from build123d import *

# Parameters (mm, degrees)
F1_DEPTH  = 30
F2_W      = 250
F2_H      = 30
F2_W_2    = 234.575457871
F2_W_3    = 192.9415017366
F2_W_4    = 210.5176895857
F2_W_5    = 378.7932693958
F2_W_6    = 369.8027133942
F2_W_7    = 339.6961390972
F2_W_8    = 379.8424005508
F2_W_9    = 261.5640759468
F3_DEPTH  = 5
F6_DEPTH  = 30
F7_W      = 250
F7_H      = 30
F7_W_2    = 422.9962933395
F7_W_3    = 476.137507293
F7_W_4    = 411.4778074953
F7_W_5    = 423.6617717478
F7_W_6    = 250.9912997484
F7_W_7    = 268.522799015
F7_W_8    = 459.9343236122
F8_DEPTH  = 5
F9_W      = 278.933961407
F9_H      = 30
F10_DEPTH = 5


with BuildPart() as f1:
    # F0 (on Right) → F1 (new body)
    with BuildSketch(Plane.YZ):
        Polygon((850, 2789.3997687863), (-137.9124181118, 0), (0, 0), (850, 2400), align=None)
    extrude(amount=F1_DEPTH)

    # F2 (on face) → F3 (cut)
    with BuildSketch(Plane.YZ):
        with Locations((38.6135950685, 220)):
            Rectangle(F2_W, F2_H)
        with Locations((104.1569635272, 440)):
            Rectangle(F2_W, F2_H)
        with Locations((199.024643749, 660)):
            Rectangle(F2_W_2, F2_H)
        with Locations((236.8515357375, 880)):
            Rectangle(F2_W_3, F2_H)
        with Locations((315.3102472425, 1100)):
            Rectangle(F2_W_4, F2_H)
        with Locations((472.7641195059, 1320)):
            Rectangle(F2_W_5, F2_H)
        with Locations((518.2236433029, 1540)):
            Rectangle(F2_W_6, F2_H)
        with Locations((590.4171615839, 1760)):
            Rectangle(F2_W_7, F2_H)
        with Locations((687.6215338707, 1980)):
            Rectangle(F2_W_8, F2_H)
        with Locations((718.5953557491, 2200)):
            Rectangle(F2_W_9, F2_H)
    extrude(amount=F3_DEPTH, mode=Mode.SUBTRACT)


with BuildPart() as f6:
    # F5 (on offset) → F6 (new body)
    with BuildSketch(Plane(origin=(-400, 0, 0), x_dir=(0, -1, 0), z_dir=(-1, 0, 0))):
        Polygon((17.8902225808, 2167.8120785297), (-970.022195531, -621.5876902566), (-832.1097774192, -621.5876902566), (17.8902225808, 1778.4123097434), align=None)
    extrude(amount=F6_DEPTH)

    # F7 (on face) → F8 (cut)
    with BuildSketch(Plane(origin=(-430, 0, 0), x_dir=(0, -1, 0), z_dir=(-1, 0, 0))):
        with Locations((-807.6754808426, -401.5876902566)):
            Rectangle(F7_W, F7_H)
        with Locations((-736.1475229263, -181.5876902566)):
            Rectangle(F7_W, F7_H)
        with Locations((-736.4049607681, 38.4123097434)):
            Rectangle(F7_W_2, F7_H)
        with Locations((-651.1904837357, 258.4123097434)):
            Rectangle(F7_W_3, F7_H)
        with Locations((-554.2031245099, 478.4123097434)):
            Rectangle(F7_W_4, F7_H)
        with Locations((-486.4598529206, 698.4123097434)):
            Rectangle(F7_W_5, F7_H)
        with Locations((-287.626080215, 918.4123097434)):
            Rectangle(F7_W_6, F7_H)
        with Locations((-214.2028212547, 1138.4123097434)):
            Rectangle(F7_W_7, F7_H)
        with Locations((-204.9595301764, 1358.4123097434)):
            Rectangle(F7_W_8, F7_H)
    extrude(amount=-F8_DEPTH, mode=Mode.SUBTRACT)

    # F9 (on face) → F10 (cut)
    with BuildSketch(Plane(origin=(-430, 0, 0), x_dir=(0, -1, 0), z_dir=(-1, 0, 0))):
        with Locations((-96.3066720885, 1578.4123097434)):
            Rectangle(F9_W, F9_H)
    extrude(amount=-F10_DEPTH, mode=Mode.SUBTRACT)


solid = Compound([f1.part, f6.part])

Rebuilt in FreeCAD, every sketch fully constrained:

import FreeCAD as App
import Part
import Sketcher

V = App.Vector
Q = App.Units.Quantity

doc = App.newDocument("Part")
body = doc.addObject("PartDesign::Body", "Body")

sketch1 = body.newObject("Sketcher::SketchObject", "Sketch")
sketch1.AttachmentSupport = (doc.getObject("YZ_Plane"), [""])
sketch1.MapMode = "FlatFace"
sketch1.addGeometry([
    Part.LineSegment(V(850, 2789, 0), V(-138, 0, 0)),
    Part.LineSegment(V(-138, 0, 0), V(0, 0, 0)),
    Part.LineSegment(V(0, 0, 0), V(850, 2400, 0)),
    Part.LineSegment(V(850, 2400, 0), V(850, 2789, 0)),
], False)
sketch1.addConstraint([
    Sketcher.Constraint("Coincident", 0, 2, 1, 1),
    Sketcher.Constraint("Coincident", 1, 2, 2, 1),
    Sketcher.Constraint("Coincident", 2, 2, 3, 1),
    Sketcher.Constraint("Coincident", 3, 2, 0, 1),
    Sketcher.Constraint("Horizontal", 1),
    Sketcher.Constraint("Vertical", 3),
    Sketcher.Constraint("Coincident", 1, 2, -1, 1),
    Sketcher.Constraint("Parallel", 0, 2),
    Sketcher.Constraint("DistanceX", -1, 1, 2, 2, Q("850 mm")),
    Sketcher.Constraint("DistanceY", -1, 1, 2, 2, Q("2400 mm")),
    Sketcher.Constraint("Distance", 0, Q("2959.175901 mm")),
])
pad1 = body.newObject("PartDesign::Pad", "Pad")
pad1.Profile = sketch1
pad1.Length = 30

sketch2 = body.newObject("Sketcher::SketchObject", "Sketch001")
sketch2.AttachmentSupport = (doc.getObject("YZ_Plane"), [""])
sketch2.MapMode = "FlatFace"
sketch2.addGeometry([
    Part.LineSegment(V(-86, 235, 0), V(-86, 205, 0)),
    Part.LineSegment(V(-86, 205, 0), V(164, 205, 0)),
    Part.LineSegment(V(164, 205, 0), V(164, 235, 0)),
    Part.LineSegment(V(164, 235, 0), V(-86, 235, 0)),
    Part.LineSegment(V(-21, 455, 0), V(-21, 425, 0)),
    Part.LineSegment(V(-21, 425, 0), V(229, 425, 0)),
    Part.LineSegment(V(229, 425, 0), V(229, 455, 0)),
    Part.LineSegment(V(229, 455, 0), V(-21, 455, 0)),
    Part.LineSegment(V(82, 675, 0), V(82, 645, 0)),
    Part.LineSegment(V(82, 645, 0), V(316, 645, 0)),
    Part.LineSegment(V(316, 645, 0), V(316, 675, 0)),
    Part.LineSegment(V(316, 675, 0), V(82, 675, 0)),
    Part.LineSegment(V(140, 895, 0), V(140, 865, 0)),
    Part.LineSegment(V(140, 865, 0), V(333, 865, 0)),
    Part.LineSegment(V(333, 865, 0), V(333, 895, 0)),
    Part.LineSegment(V(333, 895, 0), V(140, 895, 0)),
    Part.LineSegment(V(210, 1115, 0), V(210, 1085, 0)),
    Part.LineSegment(V(210, 1085, 0), V(421, 1085, 0)),
    Part.LineSegment(V(421, 1085, 0), V(421, 1115, 0)),
    Part.LineSegment(V(421, 1115, 0), V(210, 1115, 0)),
    Part.LineSegment(V(283, 1335, 0), V(283, 1305, 0)),
    Part.LineSegment(V(283, 1305, 0), V(662, 1305, 0)),
    Part.LineSegment(V(662, 1305, 0), V(662, 1335, 0)),
    Part.LineSegment(V(662, 1335, 0), V(283, 1335, 0)),
    Part.LineSegment(V(333, 1555, 0), V(333, 1525, 0)),
    Part.LineSegment(V(333, 1525, 0), V(703, 1525, 0)),
    Part.LineSegment(V(703, 1525, 0), V(703, 1555, 0)),
    Part.LineSegment(V(703, 1555, 0), V(333, 1555, 0)),
    Part.LineSegment(V(421, 1775, 0), V(421, 1745, 0)),
    Part.LineSegment(V(421, 1745, 0), V(760, 1745, 0)),
    Part.LineSegment(V(760, 1745, 0), V(760, 1775, 0)),
    Part.LineSegment(V(760, 1775, 0), V(421, 1775, 0)),
    Part.LineSegment(V(498, 1995, 0), V(498, 1965, 0)),
    Part.LineSegment(V(498, 1965, 0), V(878, 1965, 0)),
    Part.LineSegment(V(878, 1965, 0), V(878, 1995, 0)),
    Part.LineSegment(V(878, 1995, 0), V(498, 1995, 0)),
    Part.LineSegment(V(588, 2215, 0), V(588, 2185, 0)),
    Part.LineSegment(V(588, 2185, 0), V(849, 2185, 0)),
    Part.LineSegment(V(849, 2185, 0), V(849, 2215, 0)),
    Part.LineSegment(V(849, 2215, 0), V(588, 2215, 0)),
], False)
sketch2.addConstraint([
    Sketcher.Constraint("Coincident", 0, 2, 1, 1),
    Sketcher.Constraint("Coincident", 1, 2, 2, 1),
    Sketcher.Constraint("Coincident", 2, 2, 3, 1),
    Sketcher.Constraint("Coincident", 3, 2, 0, 1),
    Sketcher.Constraint("Coincident", 4, 2, 5, 1),
    Sketcher.Constraint("Coincident", 5, 2, 6, 1),
    Sketcher.Constraint("Coincident", 6, 2, 7, 1),
    Sketcher.Constraint("Coincident", 7, 2, 4, 1),
    Sketcher.Constraint("Coincident", 8, 2, 9, 1),
    Sketcher.Constraint("Coincident", 9, 2, 10, 1),
    Sketcher.Constraint("Coincident", 10, 2, 11, 1),
    Sketcher.Constraint("Coincident", 11, 2, 8, 1),
    Sketcher.Constraint("Coincident", 12, 2, 13, 1),
    Sketcher.Constraint("Coincident", 13, 2, 14, 1),
    Sketcher.Constraint("Coincident", 14, 2, 15, 1),
    Sketcher.Constraint("Coincident", 15, 2, 12, 1),
    Sketcher.Constraint("Coincident", 16, 2, 17, 1),
    Sketcher.Constraint("Coincident", 17, 2, 18, 1),
    Sketcher.Constraint("Coincident", 18, 2, 19, 1),
    Sketcher.Constraint("Coincident", 19, 2, 16, 1),
    Sketcher.Constraint("Coincident", 20, 2, 21, 1),
    Sketcher.Constraint("Coincident", 21, 2, 22, 1),
    Sketcher.Constraint("Coincident", 22, 2, 23, 1),
    Sketcher.Constraint("Coincident", 23, 2, 20, 1),
    Sketcher.Constraint("Coincident", 24, 2, 25, 1),
    Sketcher.Constraint("Coincident", 25, 2, 26, 1),
    Sketcher.Constraint("Coincident", 26, 2, 27, 1),
    Sketcher.Constraint("Coincident", 27, 2, 24, 1),
    Sketcher.Constraint("Coincident", 28, 2, 29, 1),
    Sketcher.Constraint("Coincident", 29, 2, 30, 1),
    Sketcher.Constraint("Coincident", 30, 2, 31, 1),
    Sketcher.Constraint("Coincident", 31, 2, 28, 1),
    Sketcher.Constraint("Coincident", 32, 2, 33, 1),
    Sketcher.Constraint("Coincident", 33, 2, 34, 1),
    Sketcher.Constraint("Coincident", 34, 2, 35, 1),
    Sketcher.Constraint("Coincident", 35, 2, 32, 1),
    Sketcher.Constraint("Coincident", 36, 2, 37, 1),
    Sketcher.Constraint("Coincident", 37, 2, 38, 1),
    Sketcher.Constraint("Coincident", 38, 2, 39, 1),
    Sketcher.Constraint("Coincident", 39, 2, 36, 1),
    Sketcher.Constraint("Vertical", 0),
    Sketcher.Constraint("Horizontal", 1),
    Sketcher.Constraint("Vertical", 2),
    Sketcher.Constraint("Horizontal", 3),
    Sketcher.Constraint("Vertical", 4),
    Sketcher.Constraint("Horizontal", 5),
    Sketcher.Constraint("Vertical", 6),
    Sketcher.Constraint("Horizontal", 7),
    Sketcher.Constraint("Vertical", 8),
    Sketcher.Constraint("Horizontal", 9),
    Sketcher.Constraint("Vertical", 10),
    Sketcher.Constraint("Horizontal", 11),
    Sketcher.Constraint("Vertical", 12),
    Sketcher.Constraint("Horizontal", 13),
    Sketcher.Constraint("Vertical", 14),
    Sketcher.Constraint("Horizontal", 15),
    Sketcher.Constraint("Vertical", 16),
    Sketcher.Constraint("Horizontal", 17),
    Sketcher.Constraint("Vertical", 18),
    Sketcher.Constraint("Horizontal", 19),
    Sketcher.Constraint("Vertical", 20),
    Sketcher.Constraint("Horizontal", 21),
    Sketcher.Constraint("Vertical", 22),
    Sketcher.Constraint("Horizontal", 23),
    Sketcher.Constraint("Vertical", 24),
    Sketcher.Constraint("Horizontal", 25),
    Sketcher.Constraint("Vertical", 26),
    Sketcher.Constraint("Horizontal", 27),
    Sketcher.Constraint("Vertical", 28),
    Sketcher.Constraint("Horizontal", 29),
    Sketcher.Constraint("Vertical", 30),
    Sketcher.Constraint("Horizontal", 31),
    Sketcher.Constraint("Vertical", 32),
    Sketcher.Constraint("Horizontal", 33),
    Sketcher.Constraint("Vertical", 34),
    Sketcher.Constraint("Horizontal", 35),
    Sketcher.Constraint("Vertical", 36),
    Sketcher.Constraint("Horizontal", 37),
    Sketcher.Constraint("Vertical", 38),
    Sketcher.Constraint("Horizontal", 39),
    Sketcher.Constraint("Vertical", 14, 2, 24, 2),
    Sketcher.Constraint("Vertical", 18, 2, 28, 2),
    Sketcher.Constraint("Equal", 3, 5),
    Sketcher.Constraint("Equal", 2, 4),
    Sketcher.Constraint("Equal", 6, 8),
    Sketcher.Constraint("Equal", 10, 12),
    Sketcher.Constraint("Equal", 14, 16),
    Sketcher.Constraint("Equal", 18, 20),
    Sketcher.Constraint("Equal", 22, 24),
    Sketcher.Constraint("Equal", 26, 28),
    Sketcher.Constraint("Equal", 30, 32),
    Sketcher.Constraint("Equal", 34, 36),
    Sketcher.Constraint("DistanceX", 1, 1, 1, 2, Q("250 mm")),
    Sketcher.Constraint("DistanceY", 0, 2, 0, 1, Q("30 mm")),
    Sketcher.Constraint("DistanceY", -1, 1, 0, 2, Q("205 mm")),
    Sketcher.Constraint("DistanceY", -1, 1, 4, 2, Q("425 mm")),
    Sketcher.Constraint("DistanceY", -1, 1, 8, 2, Q("645 mm")),
    Sketcher.Constraint("DistanceY", -1, 1, 12, 2, Q("865 mm")),
    Sketcher.Constraint("DistanceY", -1, 1, 16, 2, Q("1085 mm")),
    Sketcher.Constraint("DistanceY", -1, 1, 20, 2, Q("1305 mm")),
    Sketcher.Constraint("DistanceY", -1, 1, 24, 2, Q("1525 mm")),
    Sketcher.Constraint("DistanceY", -1, 1, 28, 2, Q("1745 mm")),
    Sketcher.Constraint("DistanceY", -1, 1, 32, 2, Q("1965 mm")),
    Sketcher.Constraint("DistanceY", -1, 1, 36, 2, Q("2185 mm")),
    Sketcher.Constraint("DistanceX", 13, 1, 13, 2, Q("192.941502 mm")),
    Sketcher.Constraint("DistanceX", 33, 1, 33, 2, Q("379.842401 mm")),
    Sketcher.Constraint("DistanceX", -1, 1, 25, 2, Q("703.125 mm")),
    Sketcher.Constraint("DistanceX", 17, 1, 17, 2, Q("210.51769 mm")),
    Sketcher.Constraint("DistanceX", 21, 1, 21, 2, Q("378.793269 mm")),
    Sketcher.Constraint("DistanceX", 29, 1, 29, 2, Q("339.696139 mm")),
    Sketcher.Constraint("DistanceX", 20, 2, 14, 2, Q("49.954802 mm")),
    Sketcher.Constraint("DistanceX", 9, 1, 9, 2, Q("234.575458 mm")),
    Sketcher.Constraint("DistanceX", 25, 1, 25, 2, Q("369.802713 mm")),
    Sketcher.Constraint("DistanceX", 37, 1, 37, 2, Q("261.564076 mm")),
    Sketcher.Constraint("DistanceX", -1, 1, 29, 2, Q("760.265231 mm")),
    Sketcher.Constraint("DistanceX", 3, 2, 4, 2, Q("65.543368 mm")),
    Sketcher.Constraint("DistanceX", 7, 2, 8, 2, Q("102.579951 mm")),
    Sketcher.Constraint("DistanceX", 11, 2, 12, 2, Q("58.64387 mm")),
    Sketcher.Constraint("DistanceX", 31, 2, 32, 2, Q("77.131242 mm")),
    Sketcher.Constraint("DistanceX", 37, 2, 34, 2, Q("28.16534 mm")),
])
pocket1 = body.newObject("PartDesign::Pocket", "Pocket")
pocket1.Profile = sketch2
pocket1.Length = 5
pocket1.Reversed = True
body2 = doc.addObject("PartDesign::Body", "Body001")

sketch3 = body2.newObject("Sketcher::SketchObject", "Sketch002")
sketch3.AttachmentSupport = (doc.getObject("YZ_Plane001"), [""])
sketch3.MapMode = "FlatFace"
sketch3.AttachmentOffset = App.Placement(V(0, 0, -400), App.Rotation())
sketch3.addGeometry([
    Part.LineSegment(V(-18, 2168, 0), V(970, -622, 0)),
    Part.LineSegment(V(970, -622, 0), V(832, -622, 0)),
    Part.LineSegment(V(832, -622, 0), V(-18, 1778, 0)),
    Part.LineSegment(V(-18, 1778, 0), V(-18, 2168, 0)),
], False)
sketch3.addConstraint([
    Sketcher.Constraint("Coincident", 0, 2, 1, 1),
    Sketcher.Constraint("Coincident", 1, 2, 2, 1),
    Sketcher.Constraint("Coincident", 2, 2, 3, 1),
    Sketcher.Constraint("Coincident", 3, 2, 0, 1),
    Sketcher.Constraint("Horizontal", 1),
    Sketcher.Constraint("Vertical", 3),
    Sketcher.Constraint("Parallel", 0, 2),
    Sketcher.Constraint("DistanceX", 2, 2, 1, 2, Q("850 mm")),
    Sketcher.Constraint("DistanceY", 1, 2, 2, 2, Q("2400 mm")),
    Sketcher.Constraint("Distance", 0, Q("2959.175901 mm")),
    Sketcher.Constraint("DistanceY", 0, 2, -1, 1, Q("621.58769 mm")),
    Sketcher.Constraint("DistanceX", -1, 1, 0, 2, Q("970.022196 mm")),
])
pad2 = body2.newObject("PartDesign::Pad", "Pad001")
pad2.Profile = sketch3
pad2.Length = 30
pad2.Reversed = True

sketch4 = body2.newObject("Sketcher::SketchObject", "Sketch003")
sketch4.AttachmentSupport = (doc.getObject("YZ_Plane001"), [""])
sketch4.MapMode = "FlatFace"
sketch4.AttachmentOffset = App.Placement(V(0, 0, -430), App.Rotation())
sketch4.addGeometry([
    Part.LineSegment(V(933, -387, 0), V(933, -417, 0)),
    Part.LineSegment(V(933, -417, 0), V(683, -417, 0)),
    Part.LineSegment(V(683, -417, 0), V(683, -387, 0)),
    Part.LineSegment(V(683, -387, 0), V(933, -387, 0)),
    Part.LineSegment(V(861, -167, 0), V(861, -197, 0)),
    Part.LineSegment(V(861, -197, 0), V(611, -197, 0)),
    Part.LineSegment(V(611, -197, 0), V(611, -167, 0)),
    Part.LineSegment(V(611, -167, 0), V(861, -167, 0)),
    Part.LineSegment(V(948, 53, 0), V(948, 23, 0)),
    Part.LineSegment(V(948, 23, 0), V(525, 23, 0)),
    Part.LineSegment(V(525, 23, 0), V(525, 53, 0)),
    Part.LineSegment(V(525, 53, 0), V(948, 53, 0)),
    Part.LineSegment(V(889, 273, 0), V(889, 243, 0)),
    Part.LineSegment(V(889, 243, 0), V(413, 243, 0)),
    Part.LineSegment(V(413, 243, 0), V(413, 273, 0)),
    Part.LineSegment(V(413, 273, 0), V(889, 273, 0)),
    Part.LineSegment(V(760, 493, 0), V(760, 463, 0)),
    Part.LineSegment(V(760, 463, 0), V(348, 463, 0)),
    Part.LineSegment(V(348, 463, 0), V(348, 493, 0)),
    Part.LineSegment(V(348, 493, 0), V(760, 493, 0)),
    Part.LineSegment(V(698, 713, 0), V(698, 683, 0)),
    Part.LineSegment(V(698, 683, 0), V(275, 683, 0)),
    Part.LineSegment(V(275, 683, 0), V(275, 713, 0)),
    Part.LineSegment(V(275, 713, 0), V(698, 713, 0)),
    Part.LineSegment(V(413, 933, 0), V(413, 903, 0)),
    Part.LineSegment(V(413, 903, 0), V(162, 903, 0)),
    Part.LineSegment(V(162, 903, 0), V(162, 933, 0)),
    Part.LineSegment(V(162, 933, 0), V(413, 933, 0)),
    Part.LineSegment(V(348, 1153, 0), V(348, 1123, 0)),
    Part.LineSegment(V(348, 1123, 0), V(80, 1123, 0)),
    Part.LineSegment(V(80, 1123, 0), V(80, 1153, 0)),
    Part.LineSegment(V(80, 1153, 0), V(348, 1153, 0)),
    Part.LineSegment(V(435, 1373, 0), V(435, 1343, 0)),
    Part.LineSegment(V(435, 1343, 0), V(-25, 1343, 0)),
    Part.LineSegment(V(-25, 1343, 0), V(-25, 1373, 0)),
    Part.LineSegment(V(-25, 1373, 0), V(435, 1373, 0)),
], False)
sketch4.addConstraint([
    Sketcher.Constraint("Coincident", 0, 2, 1, 1),
    Sketcher.Constraint("Coincident", 1, 2, 2, 1),
    Sketcher.Constraint("Coincident", 2, 2, 3, 1),
    Sketcher.Constraint("Coincident", 3, 2, 0, 1),
    Sketcher.Constraint("Coincident", 4, 2, 5, 1),
    Sketcher.Constraint("Coincident", 5, 2, 6, 1),
    Sketcher.Constraint("Coincident", 6, 2, 7, 1),
    Sketcher.Constraint("Coincident", 7, 2, 4, 1),
    Sketcher.Constraint("Coincident", 8, 2, 9, 1),
    Sketcher.Constraint("Coincident", 9, 2, 10, 1),
    Sketcher.Constraint("Coincident", 10, 2, 11, 1),
    Sketcher.Constraint("Coincident", 11, 2, 8, 1),
    Sketcher.Constraint("Coincident", 12, 2, 13, 1),
    Sketcher.Constraint("Coincident", 13, 2, 14, 1),
    Sketcher.Constraint("Coincident", 14, 2, 15, 1),
    Sketcher.Constraint("Coincident", 15, 2, 12, 1),
    Sketcher.Constraint("Coincident", 16, 2, 17, 1),
    Sketcher.Constraint("Coincident", 17, 2, 18, 1),
    Sketcher.Constraint("Coincident", 18, 2, 19, 1),
    Sketcher.Constraint("Coincident", 19, 2, 16, 1),
    Sketcher.Constraint("Coincident", 20, 2, 21, 1),
    Sketcher.Constraint("Coincident", 21, 2, 22, 1),
    Sketcher.Constraint("Coincident", 22, 2, 23, 1),
    Sketcher.Constraint("Coincident", 23, 2, 20, 1),
    Sketcher.Constraint("Coincident", 24, 2, 25, 1),
    Sketcher.Constraint("Coincident", 25, 2, 26, 1),
    Sketcher.Constraint("Coincident", 26, 2, 27, 1),
    Sketcher.Constraint("Coincident", 27, 2, 24, 1),
    Sketcher.Constraint("Coincident", 28, 2, 29, 1),
    Sketcher.Constraint("Coincident", 29, 2, 30, 1),
    Sketcher.Constraint("Coincident", 30, 2, 31, 1),
    Sketcher.Constraint("Coincident", 31, 2, 28, 1),
    Sketcher.Constraint("Coincident", 32, 2, 33, 1),
    Sketcher.Constraint("Coincident", 33, 2, 34, 1),
    Sketcher.Constraint("Coincident", 34, 2, 35, 1),
    Sketcher.Constraint("Coincident", 35, 2, 32, 1),
    Sketcher.Constraint("Vertical", 0),
    Sketcher.Constraint("Horizontal", 1),
    Sketcher.Constraint("Vertical", 2),
    Sketcher.Constraint("Horizontal", 3),
    Sketcher.Constraint("Vertical", 4),
    Sketcher.Constraint("Horizontal", 5),
    Sketcher.Constraint("Vertical", 6),
    Sketcher.Constraint("Horizontal", 7),
    Sketcher.Constraint("Vertical", 8),
    Sketcher.Constraint("Horizontal", 9),
    Sketcher.Constraint("Vertical", 10),
    Sketcher.Constraint("Horizontal", 11),
    Sketcher.Constraint("Vertical", 12),
    Sketcher.Constraint("Horizontal", 13),
    Sketcher.Constraint("Vertical", 14),
    Sketcher.Constraint("Horizontal", 15),
    Sketcher.Constraint("Vertical", 16),
    Sketcher.Constraint("Horizontal", 17),
    Sketcher.Constraint("Vertical", 18),
    Sketcher.Constraint("Horizontal", 19),
    Sketcher.Constraint("Vertical", 20),
    Sketcher.Constraint("Horizontal", 21),
    Sketcher.Constraint("Vertical", 22),
    Sketcher.Constraint("Horizontal", 23),
    Sketcher.Constraint("Vertical", 24),
    Sketcher.Constraint("Horizontal", 25),
    Sketcher.Constraint("Vertical", 26),
    Sketcher.Constraint("Horizontal", 27),
    Sketcher.Constraint("Vertical", 28),
    Sketcher.Constraint("Horizontal", 29),
    Sketcher.Constraint("Vertical", 30),
    Sketcher.Constraint("Horizontal", 31),
    Sketcher.Constraint("Vertical", 32),
    Sketcher.Constraint("Horizontal", 33),
    Sketcher.Constraint("Vertical", 34),
    Sketcher.Constraint("Horizontal", 35),
    Sketcher.Constraint("Vertical", 14, 2, 24, 2),
    Sketcher.Constraint("Vertical", 18, 2, 28, 2),
    Sketcher.Constraint("Equal", 3, 5),
    Sketcher.Constraint("Equal", 2, 4),
    Sketcher.Constraint("Equal", 6, 8),
    Sketcher.Constraint("Equal", 10, 12),
    Sketcher.Constraint("Equal", 14, 16),
    Sketcher.Constraint("Equal", 18, 20),
    Sketcher.Constraint("Equal", 22, 24),
    Sketcher.Constraint("Equal", 26, 28),
    Sketcher.Constraint("Equal", 30, 32),
    Sketcher.Constraint("DistanceX", 1, 2, 1, 1, Q("250 mm")),
    Sketcher.Constraint("DistanceY", 0, 2, 0, 1, Q("30 mm")),
    Sketcher.Constraint("DistanceY", 3, 2, 4, 2, Q("190 mm")),
    Sketcher.Constraint("DistanceY", 7, 2, 8, 2, Q("190 mm")),
    Sketcher.Constraint("DistanceY", 11, 2, 12, 2, Q("190 mm")),
    Sketcher.Constraint("DistanceY", 15, 2, 16, 2, Q("190 mm")),
    Sketcher.Constraint("DistanceY", 19, 2, 20, 2, Q("190 mm")),
    Sketcher.Constraint("DistanceY", 22, 2, 24, 2, Q("190 mm")),
    Sketcher.Constraint("DistanceY", 27, 2, 28, 2, Q("190 mm")),
    Sketcher.Constraint("DistanceY", 31, 2, 32, 2, Q("190 mm")),
    Sketcher.Constraint("DistanceX", 25, 2, 25, 1, Q("250.9913 mm")),
    Sketcher.Constraint("DistanceX", 29, 2, 29, 1, Q("268.522799 mm")),
    Sketcher.Constraint("DistanceX", 21, 2, 21, 1, Q("423.661772 mm")),
    Sketcher.Constraint("DistanceX", 14, 2, 16, 2, Q("346.820298 mm")),
    Sketcher.Constraint("DistanceX", 20, 2, 15, 2, Q("190.968499 mm")),
    Sketcher.Constraint("DistanceX", 9, 2, 9, 1, Q("422.996293 mm")),
    Sketcher.Constraint("DistanceX", 13, 2, 13, 1, Q("476.137507 mm")),
    Sketcher.Constraint("DistanceX", 17, 2, 17, 1, Q("411.477807 mm")),
    Sketcher.Constraint("DistanceX", 33, 2, 33, 1, Q("459.934324 mm")),
    Sketcher.Constraint("DistanceX", -1, 1, 0, 2, Q("932.675481 mm")),
    Sketcher.Constraint("DistanceY", 0, 2, -1, 1, Q("416.58769 mm")),
    Sketcher.Constraint("DistanceX", -1, 1, 13, 2, Q("413.12173 mm")),
    Sketcher.Constraint("DistanceX", -1, 1, 32, 2, Q("434.926692 mm")),
    Sketcher.Constraint("DistanceX", 9, 2, 6, 2, Q("86.240709 mm")),
    Sketcher.Constraint("DistanceX", 12, 2, 11, 2, Q("58.64387 mm")),
])
pocket2 = body2.newObject("PartDesign::Pocket", "Pocket001")
pocket2.Profile = sketch4
pocket2.Length = 5
pocket2.Reversed = True

sketch5 = body2.newObject("Sketcher::SketchObject", "Sketch004")
sketch5.AttachmentSupport = (doc.getObject("YZ_Plane001"), [""])
sketch5.MapMode = "FlatFace"
sketch5.AttachmentOffset = App.Placement(V(0, 0, -430), App.Rotation())
sketch5.addGeometry([
    Part.LineSegment(V(236, 1593, 0), V(236, 1563, 0)),
    Part.LineSegment(V(236, 1563, 0), V(-43, 1563, 0)),
    Part.LineSegment(V(-43, 1563, 0), V(-43, 1593, 0)),
    Part.LineSegment(V(-43, 1593, 0), V(236, 1593, 0)),
], False)
sketch5.addConstraint([
    Sketcher.Constraint("Coincident", 0, 2, 1, 1),
    Sketcher.Constraint("Coincident", 1, 2, 2, 1),
    Sketcher.Constraint("Coincident", 2, 2, 3, 1),
    Sketcher.Constraint("Coincident", 3, 2, 0, 1),
    Sketcher.Constraint("Vertical", 0),
    Sketcher.Constraint("Horizontal", 1),
    Sketcher.Constraint("Vertical", 2),
    Sketcher.Constraint("Horizontal", 3),
    Sketcher.Constraint("DistanceY", 0, 2, 0, 1, Q("30 mm")),
    Sketcher.Constraint("DistanceX", 1, 2, 1, 1, Q("278.933961 mm")),
    Sketcher.Constraint("DistanceY", -1, 1, 0, 2, Q("1563.41231 mm")),
    Sketcher.Constraint("DistanceX", 1, 2, -1, 1, Q("43.160309 mm")),
])
pocket3 = body2.newObject("PartDesign::Pocket", "Pocket002")
pocket3.Profile = sketch5
pocket3.Length = 5
pocket3.Reversed = True

doc.recompute()
